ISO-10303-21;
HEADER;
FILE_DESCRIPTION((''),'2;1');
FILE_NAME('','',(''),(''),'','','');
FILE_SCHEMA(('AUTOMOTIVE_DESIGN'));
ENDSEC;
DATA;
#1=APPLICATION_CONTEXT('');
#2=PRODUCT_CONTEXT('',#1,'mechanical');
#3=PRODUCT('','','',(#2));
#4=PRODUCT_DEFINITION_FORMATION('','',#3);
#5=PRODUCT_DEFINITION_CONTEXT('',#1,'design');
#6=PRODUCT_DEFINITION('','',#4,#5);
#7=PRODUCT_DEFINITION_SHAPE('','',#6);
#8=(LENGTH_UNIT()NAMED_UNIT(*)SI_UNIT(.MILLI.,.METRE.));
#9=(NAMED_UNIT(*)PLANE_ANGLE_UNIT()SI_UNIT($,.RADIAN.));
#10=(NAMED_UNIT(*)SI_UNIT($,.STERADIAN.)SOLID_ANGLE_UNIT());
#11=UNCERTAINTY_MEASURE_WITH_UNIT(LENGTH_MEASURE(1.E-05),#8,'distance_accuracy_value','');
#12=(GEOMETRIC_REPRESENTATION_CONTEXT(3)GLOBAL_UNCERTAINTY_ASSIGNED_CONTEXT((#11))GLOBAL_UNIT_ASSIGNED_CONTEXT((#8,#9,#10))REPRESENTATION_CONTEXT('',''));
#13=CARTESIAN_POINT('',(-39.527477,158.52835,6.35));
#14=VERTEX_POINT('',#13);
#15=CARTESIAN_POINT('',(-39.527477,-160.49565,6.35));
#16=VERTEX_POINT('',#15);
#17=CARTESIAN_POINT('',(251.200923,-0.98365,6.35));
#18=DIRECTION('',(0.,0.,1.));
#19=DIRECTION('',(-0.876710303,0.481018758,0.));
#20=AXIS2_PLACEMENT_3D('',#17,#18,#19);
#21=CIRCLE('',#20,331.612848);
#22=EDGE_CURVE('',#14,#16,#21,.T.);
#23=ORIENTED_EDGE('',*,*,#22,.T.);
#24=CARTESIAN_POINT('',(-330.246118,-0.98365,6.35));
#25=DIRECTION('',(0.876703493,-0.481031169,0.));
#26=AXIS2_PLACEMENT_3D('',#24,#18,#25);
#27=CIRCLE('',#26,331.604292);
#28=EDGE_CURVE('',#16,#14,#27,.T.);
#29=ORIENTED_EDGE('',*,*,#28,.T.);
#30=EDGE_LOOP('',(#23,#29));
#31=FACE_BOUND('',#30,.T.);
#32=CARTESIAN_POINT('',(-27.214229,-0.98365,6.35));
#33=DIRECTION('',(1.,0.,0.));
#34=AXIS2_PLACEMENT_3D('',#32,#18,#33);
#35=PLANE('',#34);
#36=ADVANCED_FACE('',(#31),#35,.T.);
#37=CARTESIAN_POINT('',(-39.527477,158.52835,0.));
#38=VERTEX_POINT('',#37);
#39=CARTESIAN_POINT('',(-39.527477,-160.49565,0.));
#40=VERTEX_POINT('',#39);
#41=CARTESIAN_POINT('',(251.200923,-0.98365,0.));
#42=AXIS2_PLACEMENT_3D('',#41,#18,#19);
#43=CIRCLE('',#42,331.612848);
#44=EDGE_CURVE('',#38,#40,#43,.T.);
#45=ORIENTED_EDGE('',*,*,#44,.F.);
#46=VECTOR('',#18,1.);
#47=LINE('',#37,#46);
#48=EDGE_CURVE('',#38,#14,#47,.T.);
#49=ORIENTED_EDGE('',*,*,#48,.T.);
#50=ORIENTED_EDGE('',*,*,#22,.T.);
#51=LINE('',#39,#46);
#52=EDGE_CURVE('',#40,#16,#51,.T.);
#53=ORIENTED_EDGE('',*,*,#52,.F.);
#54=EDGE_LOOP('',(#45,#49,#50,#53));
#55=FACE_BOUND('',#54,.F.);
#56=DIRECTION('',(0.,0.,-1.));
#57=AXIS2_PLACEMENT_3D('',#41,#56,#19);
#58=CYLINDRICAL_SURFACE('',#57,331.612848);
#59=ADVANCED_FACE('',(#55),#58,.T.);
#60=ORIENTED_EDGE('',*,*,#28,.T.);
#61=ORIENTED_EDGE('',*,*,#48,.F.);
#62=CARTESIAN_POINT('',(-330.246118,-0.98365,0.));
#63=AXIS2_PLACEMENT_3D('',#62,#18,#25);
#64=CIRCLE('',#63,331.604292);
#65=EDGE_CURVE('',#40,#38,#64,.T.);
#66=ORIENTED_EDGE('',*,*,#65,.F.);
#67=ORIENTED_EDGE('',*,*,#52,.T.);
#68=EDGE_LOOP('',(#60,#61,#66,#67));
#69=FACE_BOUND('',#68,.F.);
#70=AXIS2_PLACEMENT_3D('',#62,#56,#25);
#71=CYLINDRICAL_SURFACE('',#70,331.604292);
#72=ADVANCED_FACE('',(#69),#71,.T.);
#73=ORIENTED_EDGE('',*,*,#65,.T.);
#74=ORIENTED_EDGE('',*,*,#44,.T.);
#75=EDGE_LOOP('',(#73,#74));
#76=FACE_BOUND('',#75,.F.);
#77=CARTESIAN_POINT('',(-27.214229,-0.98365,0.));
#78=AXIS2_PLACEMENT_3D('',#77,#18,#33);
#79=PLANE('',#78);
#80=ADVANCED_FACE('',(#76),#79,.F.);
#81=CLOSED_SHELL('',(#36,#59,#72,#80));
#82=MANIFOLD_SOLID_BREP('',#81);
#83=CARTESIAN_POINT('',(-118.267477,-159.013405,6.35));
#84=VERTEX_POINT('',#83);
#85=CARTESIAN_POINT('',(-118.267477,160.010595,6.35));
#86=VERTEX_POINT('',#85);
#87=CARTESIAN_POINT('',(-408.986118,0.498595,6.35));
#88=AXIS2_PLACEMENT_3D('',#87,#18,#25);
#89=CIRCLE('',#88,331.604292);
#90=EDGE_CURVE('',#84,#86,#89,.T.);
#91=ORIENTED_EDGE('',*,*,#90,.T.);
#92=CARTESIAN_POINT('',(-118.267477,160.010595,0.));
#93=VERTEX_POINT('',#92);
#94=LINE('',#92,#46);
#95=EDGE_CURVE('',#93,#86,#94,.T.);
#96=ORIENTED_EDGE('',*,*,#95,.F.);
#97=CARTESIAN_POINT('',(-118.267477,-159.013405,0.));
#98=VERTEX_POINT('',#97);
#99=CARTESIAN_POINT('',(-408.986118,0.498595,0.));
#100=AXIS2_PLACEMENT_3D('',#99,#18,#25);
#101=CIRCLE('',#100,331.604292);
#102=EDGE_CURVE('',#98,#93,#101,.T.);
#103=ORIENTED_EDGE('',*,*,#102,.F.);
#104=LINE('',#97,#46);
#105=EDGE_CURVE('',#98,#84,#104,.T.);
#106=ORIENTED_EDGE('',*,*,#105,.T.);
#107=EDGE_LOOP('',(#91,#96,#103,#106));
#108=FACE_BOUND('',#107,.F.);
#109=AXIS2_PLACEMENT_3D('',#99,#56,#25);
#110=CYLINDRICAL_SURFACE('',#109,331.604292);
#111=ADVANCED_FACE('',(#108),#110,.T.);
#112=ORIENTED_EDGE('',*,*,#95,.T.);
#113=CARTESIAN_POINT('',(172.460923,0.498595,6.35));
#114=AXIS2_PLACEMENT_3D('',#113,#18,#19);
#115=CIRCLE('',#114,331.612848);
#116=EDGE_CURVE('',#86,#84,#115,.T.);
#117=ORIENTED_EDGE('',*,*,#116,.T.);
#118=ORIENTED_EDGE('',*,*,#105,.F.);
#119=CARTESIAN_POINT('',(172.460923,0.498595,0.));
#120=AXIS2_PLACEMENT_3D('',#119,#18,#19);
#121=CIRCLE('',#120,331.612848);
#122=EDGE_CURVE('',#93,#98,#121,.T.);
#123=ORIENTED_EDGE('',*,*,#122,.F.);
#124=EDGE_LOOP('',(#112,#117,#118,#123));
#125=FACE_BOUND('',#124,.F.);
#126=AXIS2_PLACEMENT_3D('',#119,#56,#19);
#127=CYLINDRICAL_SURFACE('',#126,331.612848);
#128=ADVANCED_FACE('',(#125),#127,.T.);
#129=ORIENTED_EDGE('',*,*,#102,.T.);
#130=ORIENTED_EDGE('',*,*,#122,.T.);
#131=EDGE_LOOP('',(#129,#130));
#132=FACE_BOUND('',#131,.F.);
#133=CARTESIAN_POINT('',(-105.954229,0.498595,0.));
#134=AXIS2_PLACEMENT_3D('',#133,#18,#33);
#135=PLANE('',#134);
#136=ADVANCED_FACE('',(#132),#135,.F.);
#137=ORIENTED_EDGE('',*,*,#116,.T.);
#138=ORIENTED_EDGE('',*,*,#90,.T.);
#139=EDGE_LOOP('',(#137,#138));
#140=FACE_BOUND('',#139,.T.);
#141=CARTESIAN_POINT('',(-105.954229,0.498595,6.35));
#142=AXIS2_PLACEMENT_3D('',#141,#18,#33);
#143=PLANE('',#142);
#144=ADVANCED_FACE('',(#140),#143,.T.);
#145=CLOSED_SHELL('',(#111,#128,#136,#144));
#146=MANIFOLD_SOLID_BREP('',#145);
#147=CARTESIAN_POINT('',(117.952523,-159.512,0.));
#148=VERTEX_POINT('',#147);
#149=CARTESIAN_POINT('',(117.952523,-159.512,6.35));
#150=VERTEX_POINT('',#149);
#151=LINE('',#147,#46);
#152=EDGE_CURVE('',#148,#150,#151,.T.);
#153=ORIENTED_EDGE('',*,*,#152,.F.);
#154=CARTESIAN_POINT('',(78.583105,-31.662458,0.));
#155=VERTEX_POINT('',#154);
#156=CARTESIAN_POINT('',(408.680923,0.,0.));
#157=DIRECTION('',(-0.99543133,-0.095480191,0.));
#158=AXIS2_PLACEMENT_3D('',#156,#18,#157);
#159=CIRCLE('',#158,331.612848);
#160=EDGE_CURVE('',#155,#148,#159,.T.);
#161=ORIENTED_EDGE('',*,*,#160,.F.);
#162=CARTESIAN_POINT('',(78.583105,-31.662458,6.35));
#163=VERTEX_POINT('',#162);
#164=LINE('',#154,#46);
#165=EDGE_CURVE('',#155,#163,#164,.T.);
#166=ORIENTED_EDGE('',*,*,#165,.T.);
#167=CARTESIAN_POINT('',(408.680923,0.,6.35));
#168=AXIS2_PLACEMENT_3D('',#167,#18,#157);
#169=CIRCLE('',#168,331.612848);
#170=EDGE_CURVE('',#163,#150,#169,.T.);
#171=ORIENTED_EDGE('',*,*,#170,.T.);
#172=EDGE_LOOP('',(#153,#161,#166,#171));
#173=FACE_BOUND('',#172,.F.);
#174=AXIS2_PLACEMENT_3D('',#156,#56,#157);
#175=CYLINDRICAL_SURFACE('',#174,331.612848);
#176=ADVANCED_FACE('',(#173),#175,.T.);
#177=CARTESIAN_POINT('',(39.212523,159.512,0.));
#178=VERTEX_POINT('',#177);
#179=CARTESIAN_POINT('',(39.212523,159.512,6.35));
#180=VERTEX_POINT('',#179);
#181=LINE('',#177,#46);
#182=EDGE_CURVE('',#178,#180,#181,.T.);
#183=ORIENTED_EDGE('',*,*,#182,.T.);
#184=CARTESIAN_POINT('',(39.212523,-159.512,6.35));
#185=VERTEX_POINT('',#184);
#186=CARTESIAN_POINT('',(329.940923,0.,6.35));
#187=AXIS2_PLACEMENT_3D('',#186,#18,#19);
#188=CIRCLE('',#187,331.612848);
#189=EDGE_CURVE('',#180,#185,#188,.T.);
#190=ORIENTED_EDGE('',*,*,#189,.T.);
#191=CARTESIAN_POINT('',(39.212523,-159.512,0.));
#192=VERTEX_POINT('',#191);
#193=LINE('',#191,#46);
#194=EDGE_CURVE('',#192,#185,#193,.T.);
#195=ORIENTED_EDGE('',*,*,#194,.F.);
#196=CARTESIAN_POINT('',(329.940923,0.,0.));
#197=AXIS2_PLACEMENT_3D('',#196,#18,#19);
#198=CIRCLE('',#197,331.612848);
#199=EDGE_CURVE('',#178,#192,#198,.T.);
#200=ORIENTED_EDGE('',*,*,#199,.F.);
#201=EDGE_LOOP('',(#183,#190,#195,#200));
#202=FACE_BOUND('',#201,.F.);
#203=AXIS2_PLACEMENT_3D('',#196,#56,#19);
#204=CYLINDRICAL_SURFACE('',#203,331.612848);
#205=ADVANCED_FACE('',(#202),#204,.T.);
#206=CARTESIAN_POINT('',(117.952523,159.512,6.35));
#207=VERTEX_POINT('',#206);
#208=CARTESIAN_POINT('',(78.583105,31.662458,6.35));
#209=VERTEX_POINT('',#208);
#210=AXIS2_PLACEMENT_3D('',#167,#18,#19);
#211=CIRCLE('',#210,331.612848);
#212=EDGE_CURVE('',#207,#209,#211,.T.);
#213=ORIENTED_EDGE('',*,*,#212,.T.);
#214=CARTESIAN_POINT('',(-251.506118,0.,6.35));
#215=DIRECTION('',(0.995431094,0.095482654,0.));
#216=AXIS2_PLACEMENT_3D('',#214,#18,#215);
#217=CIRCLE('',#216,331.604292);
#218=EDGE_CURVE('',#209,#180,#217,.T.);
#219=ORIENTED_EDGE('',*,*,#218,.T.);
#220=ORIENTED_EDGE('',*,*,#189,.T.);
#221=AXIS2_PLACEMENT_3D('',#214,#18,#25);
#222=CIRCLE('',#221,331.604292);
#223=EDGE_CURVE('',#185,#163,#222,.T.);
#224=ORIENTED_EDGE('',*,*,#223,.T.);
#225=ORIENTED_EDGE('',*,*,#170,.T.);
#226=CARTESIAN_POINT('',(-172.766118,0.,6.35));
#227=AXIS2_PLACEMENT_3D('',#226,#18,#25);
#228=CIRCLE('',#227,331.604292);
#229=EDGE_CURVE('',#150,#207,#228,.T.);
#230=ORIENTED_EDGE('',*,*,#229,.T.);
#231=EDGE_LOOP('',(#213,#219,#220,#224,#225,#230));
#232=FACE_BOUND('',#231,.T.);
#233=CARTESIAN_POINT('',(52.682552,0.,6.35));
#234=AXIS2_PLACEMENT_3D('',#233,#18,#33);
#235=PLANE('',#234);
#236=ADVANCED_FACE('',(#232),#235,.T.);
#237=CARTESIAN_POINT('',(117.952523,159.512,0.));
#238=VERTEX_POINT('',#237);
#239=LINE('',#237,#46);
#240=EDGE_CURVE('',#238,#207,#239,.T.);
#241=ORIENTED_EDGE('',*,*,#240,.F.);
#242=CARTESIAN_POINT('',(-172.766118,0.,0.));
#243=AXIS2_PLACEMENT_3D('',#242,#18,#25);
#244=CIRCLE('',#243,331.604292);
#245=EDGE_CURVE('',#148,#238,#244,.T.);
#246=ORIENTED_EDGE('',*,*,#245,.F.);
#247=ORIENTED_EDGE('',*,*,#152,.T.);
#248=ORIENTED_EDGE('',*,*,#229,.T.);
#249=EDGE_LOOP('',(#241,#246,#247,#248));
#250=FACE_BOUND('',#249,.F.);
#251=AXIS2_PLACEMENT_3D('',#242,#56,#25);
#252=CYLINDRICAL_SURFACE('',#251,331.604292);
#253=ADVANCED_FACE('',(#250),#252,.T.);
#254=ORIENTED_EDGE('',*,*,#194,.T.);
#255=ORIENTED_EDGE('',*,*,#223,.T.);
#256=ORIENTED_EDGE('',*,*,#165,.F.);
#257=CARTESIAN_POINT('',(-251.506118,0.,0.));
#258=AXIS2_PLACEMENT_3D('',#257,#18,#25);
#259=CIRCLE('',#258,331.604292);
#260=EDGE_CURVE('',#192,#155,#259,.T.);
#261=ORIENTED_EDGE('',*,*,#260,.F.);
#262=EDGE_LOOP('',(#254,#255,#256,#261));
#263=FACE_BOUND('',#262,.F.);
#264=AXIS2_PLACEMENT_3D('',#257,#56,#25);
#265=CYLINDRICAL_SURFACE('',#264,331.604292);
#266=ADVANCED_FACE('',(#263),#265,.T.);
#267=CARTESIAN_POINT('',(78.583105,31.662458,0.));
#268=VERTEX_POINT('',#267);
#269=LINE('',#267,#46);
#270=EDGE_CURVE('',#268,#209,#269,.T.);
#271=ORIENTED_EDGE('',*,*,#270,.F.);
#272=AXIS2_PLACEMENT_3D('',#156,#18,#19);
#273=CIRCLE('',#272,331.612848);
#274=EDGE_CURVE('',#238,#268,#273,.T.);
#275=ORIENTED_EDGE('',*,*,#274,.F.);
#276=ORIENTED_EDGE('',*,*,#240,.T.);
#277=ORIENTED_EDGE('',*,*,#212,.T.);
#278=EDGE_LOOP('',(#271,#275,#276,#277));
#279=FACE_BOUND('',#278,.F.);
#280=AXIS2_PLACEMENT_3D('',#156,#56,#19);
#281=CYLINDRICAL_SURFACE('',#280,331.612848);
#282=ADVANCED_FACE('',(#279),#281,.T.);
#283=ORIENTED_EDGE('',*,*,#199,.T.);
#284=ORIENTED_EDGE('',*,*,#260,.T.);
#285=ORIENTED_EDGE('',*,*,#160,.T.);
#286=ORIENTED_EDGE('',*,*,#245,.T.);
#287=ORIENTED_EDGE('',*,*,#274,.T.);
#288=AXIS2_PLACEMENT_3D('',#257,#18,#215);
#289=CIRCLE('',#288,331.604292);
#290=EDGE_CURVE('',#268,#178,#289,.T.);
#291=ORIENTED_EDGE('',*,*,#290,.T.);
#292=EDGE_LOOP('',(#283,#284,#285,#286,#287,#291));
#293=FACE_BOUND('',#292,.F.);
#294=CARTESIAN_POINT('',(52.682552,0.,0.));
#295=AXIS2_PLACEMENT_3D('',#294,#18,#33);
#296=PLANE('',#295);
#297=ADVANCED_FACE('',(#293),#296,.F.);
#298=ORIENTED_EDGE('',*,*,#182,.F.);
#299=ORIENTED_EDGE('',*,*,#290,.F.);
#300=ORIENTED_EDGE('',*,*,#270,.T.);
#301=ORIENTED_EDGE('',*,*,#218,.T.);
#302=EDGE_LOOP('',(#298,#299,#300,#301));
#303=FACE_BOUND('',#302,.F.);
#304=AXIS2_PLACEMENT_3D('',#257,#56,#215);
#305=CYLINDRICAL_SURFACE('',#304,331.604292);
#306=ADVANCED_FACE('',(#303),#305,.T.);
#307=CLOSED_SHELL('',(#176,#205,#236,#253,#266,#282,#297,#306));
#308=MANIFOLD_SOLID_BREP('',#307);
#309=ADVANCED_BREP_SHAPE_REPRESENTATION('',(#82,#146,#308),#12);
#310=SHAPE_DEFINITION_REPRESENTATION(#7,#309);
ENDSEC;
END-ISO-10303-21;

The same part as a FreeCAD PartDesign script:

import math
import FreeCAD as App
import Part
import Sketcher
Q = App.Units.Quantity

doc = App.newDocument("Part")
body = doc.addObject("PartDesign::Body", "Body")

# Sketch on XY plane
sketch1 = body.newObject("Sketcher::SketchObject", "Sketch")
sketch1.AttachmentSupport = (doc.getObject("XY_Plane"), [""])
sketch1.MapMode = "FlatFace"
sketch1.addGeometry([
    Part.ArcOfCircle(Part.Circle(App.Vector(-330, -1, 0), App.Vector(0, 0, 1), 332), math.radians(-29), math.radians(29)),
    Part.ArcOfCircle(Part.Circle(App.Vector(251, -1, 0), App.Vector(0, 0, 1), 332), math.radians(151), math.radians(209)),
], False)
sketch1.addConstraint([
    Sketcher.Constraint("Coincident", 0, 1, 1, 2),
    Sketcher.Constraint("Coincident", 1, 1, 0, 2),
    Sketcher.Constraint("Horizontal", 0, 3, 1, 3),
    Sketcher.Constraint("DistanceY", 0, 1, 0, 3, Q("6.28 in")),
    Sketcher.Constraint("Radius", 0, Q("331.604292 mm")),
    Sketcher.Constraint("DistanceX", 0, 1, 1, 3, Q("11.446 in")),
    Sketcher.Constraint("DistanceX", -1, 1, 1, 3, Q("9.8898001 in")),
    Sketcher.Constraint("DistanceY", 0, 3, -1, 1, Q("0.98365 mm")),
])
pad1 = body.newObject("PartDesign::Pad", "Pad")
pad1.Profile = sketch1
pad1.Length = Q("0.25 in")
body2 = doc.addObject("PartDesign::Body", "Body001")

# Sketch on XY plane
sketch2 = body2.newObject("Sketcher::SketchObject", "Sketch001")
sketch2.AttachmentSupport = (doc.getObject("XY_Plane001"), [""])
sketch2.MapMode = "FlatFace"
sketch2.addGeometry([
    Part.ArcOfCircle(Part.Circle(App.Vector(-252, 0, 0), App.Vector(0, 0, 1), 332), math.radians(5), math.radians(29)),  # 0
    Part.ArcOfCircle(Part.Circle(App.Vector(330, 0, 0), App.Vector(0, 0, 1), 332), math.radians(151), math.radians(209)),  # 1
    Part.ArcOfCircle(Part.Circle(App.Vector(-252, 0, 0), App.Vector(0, 0, 1), 332), math.radians(-29), math.radians(-5)),  # 2
    Part.ArcOfCircle(Part.Circle(App.Vector(409, 0, 0), App.Vector(0, 0, 1), 332), math.radians(-175), math.radians(-151)),  # 3
    Part.ArcOfCircle(Part.Circle(App.Vector(-173, 0, 0), App.Vector(0, 0, 1), 332), math.radians(-29), math.radians(29)),  # 4
    Part.ArcOfCircle(Part.Circle(App.Vector(409, 0, 0), App.Vector(0, 0, 1), 332), math.radians(151), math.radians(175)),  # 5
], False)
sketch2.addConstraint([
    Sketcher.Constraint("Coincident", 0, 2, 1, 1),
    Sketcher.Constraint("Coincident", 1, 2, 2, 1),
    Sketcher.Constraint("Coincident", 2, 2, 3, 1),
    Sketcher.Constraint("Coincident", 3, 2, 4, 1),
    Sketcher.Constraint("Coincident", 4, 2, 5, 1),
    Sketcher.Constraint("Coincident", 5, 2, 0, 1),
    Sketcher.Constraint("Coincident", 2, 3, 0, 3),
    Sketcher.Constraint("Coincident", 5, 3, 3, 3),
    Sketcher.Constraint("Equal", 0, 2),
    Sketcher.Constraint("Equal", 1, 3),
    Sketcher.Constraint("Equal", 2, 4),
    Sketcher.Constraint("Equal", 3, 5),
    Sketcher.Constraint("Symmetric", 0, 2, 1, 2, -1),
    Sketcher.Constraint("Symmetric", 3, 2, 4, 2, -1),
    Sketcher.Constraint("Horizontal", 1, 2, 3, 2),
    Sketcher.Constraint("DistanceX", 1, 3, 3, 3, Q("3.1 in")),
    Sketcher.Constraint("DistanceY", -1, 1, 0, 2, Q("6.28 in")),
    Sketcher.Constraint("Radius", 0, Q("331.604292 mm")),
    Sketcher.Constraint("DistanceX", 0, 2, 1, 3, Q("11.446 in")),
    Sketcher.Constraint("DistanceX", -1, 1, 1, 3, Q("12.9898001 in")),
])
pad2 = body2.newObject("PartDesign::Pad", "Pad001")
pad2.Profile = sketch2
pad2.Length = Q("0.25 in")
body3 = doc.addObject("PartDesign::Body", "Body002")

# Sketch on XY plane
sketch3 = body3.newObject("Sketcher::SketchObject", "Sketch002")
sketch3.AttachmentSupport = (doc.getObject("XY_Plane002"), [""])
sketch3.MapMode = "FlatFace"
sketch3.addGeometry([
    Part.ArcOfCircle(Part.Circle(App.Vector(-409, 0, 0), App.Vector(0, 0, 1), 332), math.radians(-29), math.radians(29)),
    Part.ArcOfCircle(Part.Circle(App.Vector(172, 0, 0), App.Vector(0, 0, 1), 332), math.radians(151), math.radians(209)),
], False)
sketch3.addConstraint([
    Sketcher.Constraint("Coincident", 0, 1, 1, 2),
    Sketcher.Constraint("Coincident", 1, 1, 0, 2),
    Sketcher.Constraint("Horizontal", 0, 3, 1, 3),
    Sketcher.Constraint("DistanceY", 0, 1, 0, 3, Q("6.28 in")),
    Sketcher.Constraint("Radius", 0, Q("331.604292 mm")),
    Sketcher.Constraint("DistanceX", 0, 1, 1, 3, Q("11.446 in")),
    Sketcher.Constraint("DistanceX", -1, 1, 1, 3, Q("6.7898001 in")),
    Sketcher.Constraint("DistanceY", -1, 1, 0, 3, Q("0.498595 mm")),
])
pad3 = body3.newObject("PartDesign::Pad", "Pad002")
pad3.Profile = sketch3
pad3.Length = Q("0.25 in")

doc.recompute()
